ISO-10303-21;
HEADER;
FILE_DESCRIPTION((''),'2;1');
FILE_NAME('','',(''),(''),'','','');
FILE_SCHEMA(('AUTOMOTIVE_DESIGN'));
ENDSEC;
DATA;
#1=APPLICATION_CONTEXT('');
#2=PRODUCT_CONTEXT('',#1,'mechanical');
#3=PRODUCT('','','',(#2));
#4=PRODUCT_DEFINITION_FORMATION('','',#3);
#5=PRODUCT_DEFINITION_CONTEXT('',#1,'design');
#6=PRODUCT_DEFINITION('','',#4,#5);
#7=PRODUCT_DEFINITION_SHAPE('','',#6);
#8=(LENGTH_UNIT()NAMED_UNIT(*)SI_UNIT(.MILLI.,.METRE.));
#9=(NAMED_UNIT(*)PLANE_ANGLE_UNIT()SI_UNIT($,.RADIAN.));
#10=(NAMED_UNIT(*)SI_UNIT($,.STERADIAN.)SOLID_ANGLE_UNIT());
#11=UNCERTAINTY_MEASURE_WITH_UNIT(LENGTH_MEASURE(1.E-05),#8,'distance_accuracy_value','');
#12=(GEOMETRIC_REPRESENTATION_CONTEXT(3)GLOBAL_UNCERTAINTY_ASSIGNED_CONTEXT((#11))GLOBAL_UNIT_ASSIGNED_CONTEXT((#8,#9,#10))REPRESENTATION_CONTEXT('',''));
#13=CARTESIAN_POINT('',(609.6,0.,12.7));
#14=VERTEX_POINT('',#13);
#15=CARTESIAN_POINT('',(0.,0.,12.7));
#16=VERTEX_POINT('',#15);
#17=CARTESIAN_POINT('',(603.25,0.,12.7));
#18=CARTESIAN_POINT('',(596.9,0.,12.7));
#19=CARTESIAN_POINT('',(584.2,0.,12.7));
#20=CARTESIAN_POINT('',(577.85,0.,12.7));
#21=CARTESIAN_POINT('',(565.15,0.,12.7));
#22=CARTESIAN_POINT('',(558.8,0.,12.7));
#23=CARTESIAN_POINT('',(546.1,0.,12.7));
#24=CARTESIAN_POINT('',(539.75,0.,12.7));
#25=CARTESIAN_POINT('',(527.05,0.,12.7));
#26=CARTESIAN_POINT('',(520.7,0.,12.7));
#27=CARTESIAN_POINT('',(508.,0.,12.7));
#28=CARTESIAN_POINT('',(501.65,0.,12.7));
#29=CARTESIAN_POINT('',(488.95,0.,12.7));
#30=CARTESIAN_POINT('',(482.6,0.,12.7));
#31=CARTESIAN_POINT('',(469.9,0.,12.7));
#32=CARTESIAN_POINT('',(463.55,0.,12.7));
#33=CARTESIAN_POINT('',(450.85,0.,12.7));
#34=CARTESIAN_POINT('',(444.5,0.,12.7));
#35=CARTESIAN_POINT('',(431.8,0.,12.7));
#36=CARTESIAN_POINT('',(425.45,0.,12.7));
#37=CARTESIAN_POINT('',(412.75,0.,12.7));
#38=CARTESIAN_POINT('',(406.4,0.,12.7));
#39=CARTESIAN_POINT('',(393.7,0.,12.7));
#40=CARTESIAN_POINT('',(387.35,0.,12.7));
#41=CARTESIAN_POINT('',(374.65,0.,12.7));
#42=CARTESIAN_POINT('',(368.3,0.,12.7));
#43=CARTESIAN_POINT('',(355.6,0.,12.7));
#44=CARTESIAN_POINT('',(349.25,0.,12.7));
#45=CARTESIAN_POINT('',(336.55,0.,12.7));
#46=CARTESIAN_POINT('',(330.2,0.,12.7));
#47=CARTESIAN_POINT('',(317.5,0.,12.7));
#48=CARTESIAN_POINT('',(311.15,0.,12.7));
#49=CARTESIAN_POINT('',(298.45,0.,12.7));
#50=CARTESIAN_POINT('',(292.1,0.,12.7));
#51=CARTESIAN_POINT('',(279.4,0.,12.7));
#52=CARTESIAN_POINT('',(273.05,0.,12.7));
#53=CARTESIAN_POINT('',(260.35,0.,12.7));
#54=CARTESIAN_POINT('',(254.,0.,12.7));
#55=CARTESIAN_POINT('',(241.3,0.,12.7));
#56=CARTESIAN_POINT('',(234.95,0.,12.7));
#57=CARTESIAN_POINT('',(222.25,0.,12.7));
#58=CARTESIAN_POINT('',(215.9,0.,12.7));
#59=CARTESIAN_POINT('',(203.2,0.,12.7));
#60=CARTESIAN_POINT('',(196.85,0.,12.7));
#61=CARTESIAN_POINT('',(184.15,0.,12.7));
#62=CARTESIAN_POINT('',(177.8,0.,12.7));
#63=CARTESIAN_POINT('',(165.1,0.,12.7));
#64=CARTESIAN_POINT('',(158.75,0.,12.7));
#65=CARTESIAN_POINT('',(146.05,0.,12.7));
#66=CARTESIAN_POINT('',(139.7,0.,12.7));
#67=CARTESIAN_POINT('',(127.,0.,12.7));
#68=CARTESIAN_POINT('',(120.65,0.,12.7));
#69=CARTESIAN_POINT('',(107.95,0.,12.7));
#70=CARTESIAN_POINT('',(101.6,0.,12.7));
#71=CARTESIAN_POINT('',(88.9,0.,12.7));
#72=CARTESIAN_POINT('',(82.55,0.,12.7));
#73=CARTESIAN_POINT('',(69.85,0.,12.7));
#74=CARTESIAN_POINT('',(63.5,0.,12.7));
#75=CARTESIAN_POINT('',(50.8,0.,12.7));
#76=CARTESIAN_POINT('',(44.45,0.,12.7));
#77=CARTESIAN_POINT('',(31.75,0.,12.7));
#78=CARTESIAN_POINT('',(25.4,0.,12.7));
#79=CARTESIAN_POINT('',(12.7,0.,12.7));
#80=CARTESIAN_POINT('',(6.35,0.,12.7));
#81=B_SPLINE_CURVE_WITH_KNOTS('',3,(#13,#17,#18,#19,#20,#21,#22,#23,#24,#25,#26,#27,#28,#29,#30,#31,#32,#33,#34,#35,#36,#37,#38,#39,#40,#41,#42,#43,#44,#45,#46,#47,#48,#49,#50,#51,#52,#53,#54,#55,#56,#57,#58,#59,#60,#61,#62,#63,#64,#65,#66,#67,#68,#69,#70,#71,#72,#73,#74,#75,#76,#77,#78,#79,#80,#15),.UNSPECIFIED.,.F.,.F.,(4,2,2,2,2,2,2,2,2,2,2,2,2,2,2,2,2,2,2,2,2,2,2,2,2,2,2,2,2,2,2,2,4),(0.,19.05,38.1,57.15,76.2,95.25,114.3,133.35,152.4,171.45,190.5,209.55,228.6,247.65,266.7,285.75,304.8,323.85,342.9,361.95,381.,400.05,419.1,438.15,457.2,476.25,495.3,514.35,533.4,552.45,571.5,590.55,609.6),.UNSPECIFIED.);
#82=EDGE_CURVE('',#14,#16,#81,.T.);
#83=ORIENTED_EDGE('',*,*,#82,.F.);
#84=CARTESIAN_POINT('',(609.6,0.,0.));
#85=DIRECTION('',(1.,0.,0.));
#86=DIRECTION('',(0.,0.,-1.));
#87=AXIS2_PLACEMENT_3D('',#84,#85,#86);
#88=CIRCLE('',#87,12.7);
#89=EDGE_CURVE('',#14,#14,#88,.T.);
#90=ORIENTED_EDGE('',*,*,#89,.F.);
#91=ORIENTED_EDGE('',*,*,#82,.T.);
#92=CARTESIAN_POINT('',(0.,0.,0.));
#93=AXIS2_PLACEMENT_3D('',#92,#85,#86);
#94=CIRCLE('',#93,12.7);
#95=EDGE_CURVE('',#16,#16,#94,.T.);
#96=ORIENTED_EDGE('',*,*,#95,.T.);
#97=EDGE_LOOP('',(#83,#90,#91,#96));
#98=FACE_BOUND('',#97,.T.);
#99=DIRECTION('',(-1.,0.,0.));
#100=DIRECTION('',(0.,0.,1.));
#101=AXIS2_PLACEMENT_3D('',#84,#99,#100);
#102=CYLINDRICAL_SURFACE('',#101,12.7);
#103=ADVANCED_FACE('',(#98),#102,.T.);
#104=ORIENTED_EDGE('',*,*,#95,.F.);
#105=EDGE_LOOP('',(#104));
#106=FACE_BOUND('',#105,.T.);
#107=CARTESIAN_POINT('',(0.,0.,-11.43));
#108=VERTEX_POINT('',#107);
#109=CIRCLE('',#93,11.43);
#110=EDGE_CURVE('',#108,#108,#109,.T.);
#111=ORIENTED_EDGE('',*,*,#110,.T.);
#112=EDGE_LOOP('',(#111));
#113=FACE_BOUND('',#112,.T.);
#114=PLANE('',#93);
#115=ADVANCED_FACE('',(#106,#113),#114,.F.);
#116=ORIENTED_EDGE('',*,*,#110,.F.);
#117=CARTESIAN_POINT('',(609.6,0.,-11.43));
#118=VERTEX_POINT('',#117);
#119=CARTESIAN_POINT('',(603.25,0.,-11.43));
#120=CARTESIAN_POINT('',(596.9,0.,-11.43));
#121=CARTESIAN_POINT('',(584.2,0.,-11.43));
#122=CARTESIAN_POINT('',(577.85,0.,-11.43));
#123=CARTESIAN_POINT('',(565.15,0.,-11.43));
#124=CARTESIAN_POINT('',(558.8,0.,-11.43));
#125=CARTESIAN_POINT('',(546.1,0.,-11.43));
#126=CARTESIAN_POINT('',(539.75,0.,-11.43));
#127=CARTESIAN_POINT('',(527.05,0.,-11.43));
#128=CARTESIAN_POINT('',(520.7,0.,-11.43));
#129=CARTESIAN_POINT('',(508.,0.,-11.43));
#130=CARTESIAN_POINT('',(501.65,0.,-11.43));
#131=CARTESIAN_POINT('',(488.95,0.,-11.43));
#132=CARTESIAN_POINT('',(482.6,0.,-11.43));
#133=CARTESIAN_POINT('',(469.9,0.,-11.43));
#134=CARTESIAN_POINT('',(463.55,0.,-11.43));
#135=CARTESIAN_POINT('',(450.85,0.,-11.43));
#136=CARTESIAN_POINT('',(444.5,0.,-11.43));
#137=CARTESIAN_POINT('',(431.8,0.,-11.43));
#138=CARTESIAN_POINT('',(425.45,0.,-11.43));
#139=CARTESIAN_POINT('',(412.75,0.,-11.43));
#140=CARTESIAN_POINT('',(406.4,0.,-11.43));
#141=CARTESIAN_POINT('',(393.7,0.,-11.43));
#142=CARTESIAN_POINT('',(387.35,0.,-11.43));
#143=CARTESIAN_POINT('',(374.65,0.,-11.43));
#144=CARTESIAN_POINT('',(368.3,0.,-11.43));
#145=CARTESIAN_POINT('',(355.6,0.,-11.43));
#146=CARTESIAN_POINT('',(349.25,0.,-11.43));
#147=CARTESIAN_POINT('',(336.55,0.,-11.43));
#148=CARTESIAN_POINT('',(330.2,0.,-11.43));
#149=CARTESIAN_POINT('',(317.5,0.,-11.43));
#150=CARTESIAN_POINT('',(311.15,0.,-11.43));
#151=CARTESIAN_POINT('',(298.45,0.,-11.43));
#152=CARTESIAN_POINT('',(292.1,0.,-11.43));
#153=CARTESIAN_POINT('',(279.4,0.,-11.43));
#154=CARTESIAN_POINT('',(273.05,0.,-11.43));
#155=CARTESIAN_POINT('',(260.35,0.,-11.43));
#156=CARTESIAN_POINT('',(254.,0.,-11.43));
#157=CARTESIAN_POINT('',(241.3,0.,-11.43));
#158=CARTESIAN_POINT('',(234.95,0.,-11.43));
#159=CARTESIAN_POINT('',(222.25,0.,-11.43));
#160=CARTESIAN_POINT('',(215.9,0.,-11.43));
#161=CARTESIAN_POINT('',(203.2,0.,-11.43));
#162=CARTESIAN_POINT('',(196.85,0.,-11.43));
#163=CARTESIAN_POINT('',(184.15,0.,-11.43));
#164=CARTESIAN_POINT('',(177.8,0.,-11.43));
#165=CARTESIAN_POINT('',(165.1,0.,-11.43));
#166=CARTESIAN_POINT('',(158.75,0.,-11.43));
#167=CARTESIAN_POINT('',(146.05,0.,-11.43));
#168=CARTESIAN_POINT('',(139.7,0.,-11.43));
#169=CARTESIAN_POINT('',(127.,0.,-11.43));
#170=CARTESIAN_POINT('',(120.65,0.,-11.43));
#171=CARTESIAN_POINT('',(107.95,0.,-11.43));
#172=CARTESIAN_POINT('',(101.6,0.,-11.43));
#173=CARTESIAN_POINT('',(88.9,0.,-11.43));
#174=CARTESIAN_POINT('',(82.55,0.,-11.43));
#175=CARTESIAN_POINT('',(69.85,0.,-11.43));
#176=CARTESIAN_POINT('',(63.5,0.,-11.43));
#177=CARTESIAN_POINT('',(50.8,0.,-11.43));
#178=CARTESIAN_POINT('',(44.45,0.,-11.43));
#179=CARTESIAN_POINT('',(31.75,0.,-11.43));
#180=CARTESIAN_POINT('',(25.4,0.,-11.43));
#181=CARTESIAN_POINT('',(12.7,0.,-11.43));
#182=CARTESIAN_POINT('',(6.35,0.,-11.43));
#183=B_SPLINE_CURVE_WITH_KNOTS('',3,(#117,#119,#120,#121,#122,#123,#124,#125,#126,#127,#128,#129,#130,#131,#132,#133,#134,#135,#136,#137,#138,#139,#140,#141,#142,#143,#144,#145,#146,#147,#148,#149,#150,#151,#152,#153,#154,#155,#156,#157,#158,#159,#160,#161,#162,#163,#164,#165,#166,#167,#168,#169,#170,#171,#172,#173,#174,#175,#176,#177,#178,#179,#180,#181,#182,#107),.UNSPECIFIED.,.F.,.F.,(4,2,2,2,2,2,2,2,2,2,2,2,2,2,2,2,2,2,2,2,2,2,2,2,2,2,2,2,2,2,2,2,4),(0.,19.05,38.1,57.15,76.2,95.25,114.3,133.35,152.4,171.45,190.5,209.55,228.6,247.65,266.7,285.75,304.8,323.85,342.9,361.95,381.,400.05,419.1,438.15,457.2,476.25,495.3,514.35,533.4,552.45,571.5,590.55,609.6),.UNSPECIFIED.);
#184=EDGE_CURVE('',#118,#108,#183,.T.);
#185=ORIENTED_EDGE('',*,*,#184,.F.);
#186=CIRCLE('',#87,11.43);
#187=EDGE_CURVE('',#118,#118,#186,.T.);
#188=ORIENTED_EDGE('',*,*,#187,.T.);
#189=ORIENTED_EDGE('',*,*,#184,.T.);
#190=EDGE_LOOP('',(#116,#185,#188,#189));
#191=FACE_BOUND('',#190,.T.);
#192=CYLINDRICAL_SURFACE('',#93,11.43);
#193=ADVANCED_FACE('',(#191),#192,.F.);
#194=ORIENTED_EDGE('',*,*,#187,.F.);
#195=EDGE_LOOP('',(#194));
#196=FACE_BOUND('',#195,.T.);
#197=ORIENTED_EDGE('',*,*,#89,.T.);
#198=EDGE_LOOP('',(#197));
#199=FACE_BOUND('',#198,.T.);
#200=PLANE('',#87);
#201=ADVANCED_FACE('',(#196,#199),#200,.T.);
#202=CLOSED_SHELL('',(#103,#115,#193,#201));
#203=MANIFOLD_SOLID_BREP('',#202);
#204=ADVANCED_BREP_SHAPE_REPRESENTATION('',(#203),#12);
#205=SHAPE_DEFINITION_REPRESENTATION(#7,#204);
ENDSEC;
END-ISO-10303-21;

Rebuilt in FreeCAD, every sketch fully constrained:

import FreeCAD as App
import Part
import Sketcher

V = App.Vector
Q = App.Units.Quantity

doc = App.newDocument("Part")
body = doc.addObject("PartDesign::Body", "Body")

# Sketch on YZ plane
sketch1 = doc.addObject("Sketcher::SketchObject", "Sketch")
body.addObject(sketch1)
sketch1.AttachmentSupport = (doc.YZ_Plane, [""])
sketch1.MapMode = "FlatFace"
sketch1.addGeometry(Part.Circle(V(0, 0, 0), V(0, 0, 1), 13), False)
sketch1.addConstraint([
    Sketcher.Constraint("Coincident", 0, 3, -1, 1),
    Sketcher.Constraint("Diameter", 0, Q("1 in")),
])
pad1 = doc.addObject("PartDesign::Pad", "Pad")
body.addObject(pad1)
pad1.Profile = sketch1
pad1.Length = Q("24 in")

# Sketch on YZ plane
sketch2 = doc.addObject("Sketcher::SketchObject", "Sketch001")
body.addObject(sketch2)
sketch2.AttachmentSupport = (doc.YZ_Plane, [""])
sketch2.MapMode = "FlatFace"
sketch2.AttachmentOffset = App.Placement(V(0, 0, 24 * 25.4), App.Rotation())
sketch2.addGeometry(Part.Circle(V(0, 0, 0), V(0, 0, 1), 11), False)
sketch2.addConstraint([
    Sketcher.Constraint("Coincident", 0, 3, -1, 1),
    Sketcher.Constraint("Diameter", 0, Q("0.9 in")),
])
pocket1 = doc.addObject("PartDesign::Pocket", "Pocket")
body.addObject(pocket1)
pocket1.Profile = sketch2
pocket1.Type = "ThroughAll"
pocket1.Midplane = True

doc.recompute()
